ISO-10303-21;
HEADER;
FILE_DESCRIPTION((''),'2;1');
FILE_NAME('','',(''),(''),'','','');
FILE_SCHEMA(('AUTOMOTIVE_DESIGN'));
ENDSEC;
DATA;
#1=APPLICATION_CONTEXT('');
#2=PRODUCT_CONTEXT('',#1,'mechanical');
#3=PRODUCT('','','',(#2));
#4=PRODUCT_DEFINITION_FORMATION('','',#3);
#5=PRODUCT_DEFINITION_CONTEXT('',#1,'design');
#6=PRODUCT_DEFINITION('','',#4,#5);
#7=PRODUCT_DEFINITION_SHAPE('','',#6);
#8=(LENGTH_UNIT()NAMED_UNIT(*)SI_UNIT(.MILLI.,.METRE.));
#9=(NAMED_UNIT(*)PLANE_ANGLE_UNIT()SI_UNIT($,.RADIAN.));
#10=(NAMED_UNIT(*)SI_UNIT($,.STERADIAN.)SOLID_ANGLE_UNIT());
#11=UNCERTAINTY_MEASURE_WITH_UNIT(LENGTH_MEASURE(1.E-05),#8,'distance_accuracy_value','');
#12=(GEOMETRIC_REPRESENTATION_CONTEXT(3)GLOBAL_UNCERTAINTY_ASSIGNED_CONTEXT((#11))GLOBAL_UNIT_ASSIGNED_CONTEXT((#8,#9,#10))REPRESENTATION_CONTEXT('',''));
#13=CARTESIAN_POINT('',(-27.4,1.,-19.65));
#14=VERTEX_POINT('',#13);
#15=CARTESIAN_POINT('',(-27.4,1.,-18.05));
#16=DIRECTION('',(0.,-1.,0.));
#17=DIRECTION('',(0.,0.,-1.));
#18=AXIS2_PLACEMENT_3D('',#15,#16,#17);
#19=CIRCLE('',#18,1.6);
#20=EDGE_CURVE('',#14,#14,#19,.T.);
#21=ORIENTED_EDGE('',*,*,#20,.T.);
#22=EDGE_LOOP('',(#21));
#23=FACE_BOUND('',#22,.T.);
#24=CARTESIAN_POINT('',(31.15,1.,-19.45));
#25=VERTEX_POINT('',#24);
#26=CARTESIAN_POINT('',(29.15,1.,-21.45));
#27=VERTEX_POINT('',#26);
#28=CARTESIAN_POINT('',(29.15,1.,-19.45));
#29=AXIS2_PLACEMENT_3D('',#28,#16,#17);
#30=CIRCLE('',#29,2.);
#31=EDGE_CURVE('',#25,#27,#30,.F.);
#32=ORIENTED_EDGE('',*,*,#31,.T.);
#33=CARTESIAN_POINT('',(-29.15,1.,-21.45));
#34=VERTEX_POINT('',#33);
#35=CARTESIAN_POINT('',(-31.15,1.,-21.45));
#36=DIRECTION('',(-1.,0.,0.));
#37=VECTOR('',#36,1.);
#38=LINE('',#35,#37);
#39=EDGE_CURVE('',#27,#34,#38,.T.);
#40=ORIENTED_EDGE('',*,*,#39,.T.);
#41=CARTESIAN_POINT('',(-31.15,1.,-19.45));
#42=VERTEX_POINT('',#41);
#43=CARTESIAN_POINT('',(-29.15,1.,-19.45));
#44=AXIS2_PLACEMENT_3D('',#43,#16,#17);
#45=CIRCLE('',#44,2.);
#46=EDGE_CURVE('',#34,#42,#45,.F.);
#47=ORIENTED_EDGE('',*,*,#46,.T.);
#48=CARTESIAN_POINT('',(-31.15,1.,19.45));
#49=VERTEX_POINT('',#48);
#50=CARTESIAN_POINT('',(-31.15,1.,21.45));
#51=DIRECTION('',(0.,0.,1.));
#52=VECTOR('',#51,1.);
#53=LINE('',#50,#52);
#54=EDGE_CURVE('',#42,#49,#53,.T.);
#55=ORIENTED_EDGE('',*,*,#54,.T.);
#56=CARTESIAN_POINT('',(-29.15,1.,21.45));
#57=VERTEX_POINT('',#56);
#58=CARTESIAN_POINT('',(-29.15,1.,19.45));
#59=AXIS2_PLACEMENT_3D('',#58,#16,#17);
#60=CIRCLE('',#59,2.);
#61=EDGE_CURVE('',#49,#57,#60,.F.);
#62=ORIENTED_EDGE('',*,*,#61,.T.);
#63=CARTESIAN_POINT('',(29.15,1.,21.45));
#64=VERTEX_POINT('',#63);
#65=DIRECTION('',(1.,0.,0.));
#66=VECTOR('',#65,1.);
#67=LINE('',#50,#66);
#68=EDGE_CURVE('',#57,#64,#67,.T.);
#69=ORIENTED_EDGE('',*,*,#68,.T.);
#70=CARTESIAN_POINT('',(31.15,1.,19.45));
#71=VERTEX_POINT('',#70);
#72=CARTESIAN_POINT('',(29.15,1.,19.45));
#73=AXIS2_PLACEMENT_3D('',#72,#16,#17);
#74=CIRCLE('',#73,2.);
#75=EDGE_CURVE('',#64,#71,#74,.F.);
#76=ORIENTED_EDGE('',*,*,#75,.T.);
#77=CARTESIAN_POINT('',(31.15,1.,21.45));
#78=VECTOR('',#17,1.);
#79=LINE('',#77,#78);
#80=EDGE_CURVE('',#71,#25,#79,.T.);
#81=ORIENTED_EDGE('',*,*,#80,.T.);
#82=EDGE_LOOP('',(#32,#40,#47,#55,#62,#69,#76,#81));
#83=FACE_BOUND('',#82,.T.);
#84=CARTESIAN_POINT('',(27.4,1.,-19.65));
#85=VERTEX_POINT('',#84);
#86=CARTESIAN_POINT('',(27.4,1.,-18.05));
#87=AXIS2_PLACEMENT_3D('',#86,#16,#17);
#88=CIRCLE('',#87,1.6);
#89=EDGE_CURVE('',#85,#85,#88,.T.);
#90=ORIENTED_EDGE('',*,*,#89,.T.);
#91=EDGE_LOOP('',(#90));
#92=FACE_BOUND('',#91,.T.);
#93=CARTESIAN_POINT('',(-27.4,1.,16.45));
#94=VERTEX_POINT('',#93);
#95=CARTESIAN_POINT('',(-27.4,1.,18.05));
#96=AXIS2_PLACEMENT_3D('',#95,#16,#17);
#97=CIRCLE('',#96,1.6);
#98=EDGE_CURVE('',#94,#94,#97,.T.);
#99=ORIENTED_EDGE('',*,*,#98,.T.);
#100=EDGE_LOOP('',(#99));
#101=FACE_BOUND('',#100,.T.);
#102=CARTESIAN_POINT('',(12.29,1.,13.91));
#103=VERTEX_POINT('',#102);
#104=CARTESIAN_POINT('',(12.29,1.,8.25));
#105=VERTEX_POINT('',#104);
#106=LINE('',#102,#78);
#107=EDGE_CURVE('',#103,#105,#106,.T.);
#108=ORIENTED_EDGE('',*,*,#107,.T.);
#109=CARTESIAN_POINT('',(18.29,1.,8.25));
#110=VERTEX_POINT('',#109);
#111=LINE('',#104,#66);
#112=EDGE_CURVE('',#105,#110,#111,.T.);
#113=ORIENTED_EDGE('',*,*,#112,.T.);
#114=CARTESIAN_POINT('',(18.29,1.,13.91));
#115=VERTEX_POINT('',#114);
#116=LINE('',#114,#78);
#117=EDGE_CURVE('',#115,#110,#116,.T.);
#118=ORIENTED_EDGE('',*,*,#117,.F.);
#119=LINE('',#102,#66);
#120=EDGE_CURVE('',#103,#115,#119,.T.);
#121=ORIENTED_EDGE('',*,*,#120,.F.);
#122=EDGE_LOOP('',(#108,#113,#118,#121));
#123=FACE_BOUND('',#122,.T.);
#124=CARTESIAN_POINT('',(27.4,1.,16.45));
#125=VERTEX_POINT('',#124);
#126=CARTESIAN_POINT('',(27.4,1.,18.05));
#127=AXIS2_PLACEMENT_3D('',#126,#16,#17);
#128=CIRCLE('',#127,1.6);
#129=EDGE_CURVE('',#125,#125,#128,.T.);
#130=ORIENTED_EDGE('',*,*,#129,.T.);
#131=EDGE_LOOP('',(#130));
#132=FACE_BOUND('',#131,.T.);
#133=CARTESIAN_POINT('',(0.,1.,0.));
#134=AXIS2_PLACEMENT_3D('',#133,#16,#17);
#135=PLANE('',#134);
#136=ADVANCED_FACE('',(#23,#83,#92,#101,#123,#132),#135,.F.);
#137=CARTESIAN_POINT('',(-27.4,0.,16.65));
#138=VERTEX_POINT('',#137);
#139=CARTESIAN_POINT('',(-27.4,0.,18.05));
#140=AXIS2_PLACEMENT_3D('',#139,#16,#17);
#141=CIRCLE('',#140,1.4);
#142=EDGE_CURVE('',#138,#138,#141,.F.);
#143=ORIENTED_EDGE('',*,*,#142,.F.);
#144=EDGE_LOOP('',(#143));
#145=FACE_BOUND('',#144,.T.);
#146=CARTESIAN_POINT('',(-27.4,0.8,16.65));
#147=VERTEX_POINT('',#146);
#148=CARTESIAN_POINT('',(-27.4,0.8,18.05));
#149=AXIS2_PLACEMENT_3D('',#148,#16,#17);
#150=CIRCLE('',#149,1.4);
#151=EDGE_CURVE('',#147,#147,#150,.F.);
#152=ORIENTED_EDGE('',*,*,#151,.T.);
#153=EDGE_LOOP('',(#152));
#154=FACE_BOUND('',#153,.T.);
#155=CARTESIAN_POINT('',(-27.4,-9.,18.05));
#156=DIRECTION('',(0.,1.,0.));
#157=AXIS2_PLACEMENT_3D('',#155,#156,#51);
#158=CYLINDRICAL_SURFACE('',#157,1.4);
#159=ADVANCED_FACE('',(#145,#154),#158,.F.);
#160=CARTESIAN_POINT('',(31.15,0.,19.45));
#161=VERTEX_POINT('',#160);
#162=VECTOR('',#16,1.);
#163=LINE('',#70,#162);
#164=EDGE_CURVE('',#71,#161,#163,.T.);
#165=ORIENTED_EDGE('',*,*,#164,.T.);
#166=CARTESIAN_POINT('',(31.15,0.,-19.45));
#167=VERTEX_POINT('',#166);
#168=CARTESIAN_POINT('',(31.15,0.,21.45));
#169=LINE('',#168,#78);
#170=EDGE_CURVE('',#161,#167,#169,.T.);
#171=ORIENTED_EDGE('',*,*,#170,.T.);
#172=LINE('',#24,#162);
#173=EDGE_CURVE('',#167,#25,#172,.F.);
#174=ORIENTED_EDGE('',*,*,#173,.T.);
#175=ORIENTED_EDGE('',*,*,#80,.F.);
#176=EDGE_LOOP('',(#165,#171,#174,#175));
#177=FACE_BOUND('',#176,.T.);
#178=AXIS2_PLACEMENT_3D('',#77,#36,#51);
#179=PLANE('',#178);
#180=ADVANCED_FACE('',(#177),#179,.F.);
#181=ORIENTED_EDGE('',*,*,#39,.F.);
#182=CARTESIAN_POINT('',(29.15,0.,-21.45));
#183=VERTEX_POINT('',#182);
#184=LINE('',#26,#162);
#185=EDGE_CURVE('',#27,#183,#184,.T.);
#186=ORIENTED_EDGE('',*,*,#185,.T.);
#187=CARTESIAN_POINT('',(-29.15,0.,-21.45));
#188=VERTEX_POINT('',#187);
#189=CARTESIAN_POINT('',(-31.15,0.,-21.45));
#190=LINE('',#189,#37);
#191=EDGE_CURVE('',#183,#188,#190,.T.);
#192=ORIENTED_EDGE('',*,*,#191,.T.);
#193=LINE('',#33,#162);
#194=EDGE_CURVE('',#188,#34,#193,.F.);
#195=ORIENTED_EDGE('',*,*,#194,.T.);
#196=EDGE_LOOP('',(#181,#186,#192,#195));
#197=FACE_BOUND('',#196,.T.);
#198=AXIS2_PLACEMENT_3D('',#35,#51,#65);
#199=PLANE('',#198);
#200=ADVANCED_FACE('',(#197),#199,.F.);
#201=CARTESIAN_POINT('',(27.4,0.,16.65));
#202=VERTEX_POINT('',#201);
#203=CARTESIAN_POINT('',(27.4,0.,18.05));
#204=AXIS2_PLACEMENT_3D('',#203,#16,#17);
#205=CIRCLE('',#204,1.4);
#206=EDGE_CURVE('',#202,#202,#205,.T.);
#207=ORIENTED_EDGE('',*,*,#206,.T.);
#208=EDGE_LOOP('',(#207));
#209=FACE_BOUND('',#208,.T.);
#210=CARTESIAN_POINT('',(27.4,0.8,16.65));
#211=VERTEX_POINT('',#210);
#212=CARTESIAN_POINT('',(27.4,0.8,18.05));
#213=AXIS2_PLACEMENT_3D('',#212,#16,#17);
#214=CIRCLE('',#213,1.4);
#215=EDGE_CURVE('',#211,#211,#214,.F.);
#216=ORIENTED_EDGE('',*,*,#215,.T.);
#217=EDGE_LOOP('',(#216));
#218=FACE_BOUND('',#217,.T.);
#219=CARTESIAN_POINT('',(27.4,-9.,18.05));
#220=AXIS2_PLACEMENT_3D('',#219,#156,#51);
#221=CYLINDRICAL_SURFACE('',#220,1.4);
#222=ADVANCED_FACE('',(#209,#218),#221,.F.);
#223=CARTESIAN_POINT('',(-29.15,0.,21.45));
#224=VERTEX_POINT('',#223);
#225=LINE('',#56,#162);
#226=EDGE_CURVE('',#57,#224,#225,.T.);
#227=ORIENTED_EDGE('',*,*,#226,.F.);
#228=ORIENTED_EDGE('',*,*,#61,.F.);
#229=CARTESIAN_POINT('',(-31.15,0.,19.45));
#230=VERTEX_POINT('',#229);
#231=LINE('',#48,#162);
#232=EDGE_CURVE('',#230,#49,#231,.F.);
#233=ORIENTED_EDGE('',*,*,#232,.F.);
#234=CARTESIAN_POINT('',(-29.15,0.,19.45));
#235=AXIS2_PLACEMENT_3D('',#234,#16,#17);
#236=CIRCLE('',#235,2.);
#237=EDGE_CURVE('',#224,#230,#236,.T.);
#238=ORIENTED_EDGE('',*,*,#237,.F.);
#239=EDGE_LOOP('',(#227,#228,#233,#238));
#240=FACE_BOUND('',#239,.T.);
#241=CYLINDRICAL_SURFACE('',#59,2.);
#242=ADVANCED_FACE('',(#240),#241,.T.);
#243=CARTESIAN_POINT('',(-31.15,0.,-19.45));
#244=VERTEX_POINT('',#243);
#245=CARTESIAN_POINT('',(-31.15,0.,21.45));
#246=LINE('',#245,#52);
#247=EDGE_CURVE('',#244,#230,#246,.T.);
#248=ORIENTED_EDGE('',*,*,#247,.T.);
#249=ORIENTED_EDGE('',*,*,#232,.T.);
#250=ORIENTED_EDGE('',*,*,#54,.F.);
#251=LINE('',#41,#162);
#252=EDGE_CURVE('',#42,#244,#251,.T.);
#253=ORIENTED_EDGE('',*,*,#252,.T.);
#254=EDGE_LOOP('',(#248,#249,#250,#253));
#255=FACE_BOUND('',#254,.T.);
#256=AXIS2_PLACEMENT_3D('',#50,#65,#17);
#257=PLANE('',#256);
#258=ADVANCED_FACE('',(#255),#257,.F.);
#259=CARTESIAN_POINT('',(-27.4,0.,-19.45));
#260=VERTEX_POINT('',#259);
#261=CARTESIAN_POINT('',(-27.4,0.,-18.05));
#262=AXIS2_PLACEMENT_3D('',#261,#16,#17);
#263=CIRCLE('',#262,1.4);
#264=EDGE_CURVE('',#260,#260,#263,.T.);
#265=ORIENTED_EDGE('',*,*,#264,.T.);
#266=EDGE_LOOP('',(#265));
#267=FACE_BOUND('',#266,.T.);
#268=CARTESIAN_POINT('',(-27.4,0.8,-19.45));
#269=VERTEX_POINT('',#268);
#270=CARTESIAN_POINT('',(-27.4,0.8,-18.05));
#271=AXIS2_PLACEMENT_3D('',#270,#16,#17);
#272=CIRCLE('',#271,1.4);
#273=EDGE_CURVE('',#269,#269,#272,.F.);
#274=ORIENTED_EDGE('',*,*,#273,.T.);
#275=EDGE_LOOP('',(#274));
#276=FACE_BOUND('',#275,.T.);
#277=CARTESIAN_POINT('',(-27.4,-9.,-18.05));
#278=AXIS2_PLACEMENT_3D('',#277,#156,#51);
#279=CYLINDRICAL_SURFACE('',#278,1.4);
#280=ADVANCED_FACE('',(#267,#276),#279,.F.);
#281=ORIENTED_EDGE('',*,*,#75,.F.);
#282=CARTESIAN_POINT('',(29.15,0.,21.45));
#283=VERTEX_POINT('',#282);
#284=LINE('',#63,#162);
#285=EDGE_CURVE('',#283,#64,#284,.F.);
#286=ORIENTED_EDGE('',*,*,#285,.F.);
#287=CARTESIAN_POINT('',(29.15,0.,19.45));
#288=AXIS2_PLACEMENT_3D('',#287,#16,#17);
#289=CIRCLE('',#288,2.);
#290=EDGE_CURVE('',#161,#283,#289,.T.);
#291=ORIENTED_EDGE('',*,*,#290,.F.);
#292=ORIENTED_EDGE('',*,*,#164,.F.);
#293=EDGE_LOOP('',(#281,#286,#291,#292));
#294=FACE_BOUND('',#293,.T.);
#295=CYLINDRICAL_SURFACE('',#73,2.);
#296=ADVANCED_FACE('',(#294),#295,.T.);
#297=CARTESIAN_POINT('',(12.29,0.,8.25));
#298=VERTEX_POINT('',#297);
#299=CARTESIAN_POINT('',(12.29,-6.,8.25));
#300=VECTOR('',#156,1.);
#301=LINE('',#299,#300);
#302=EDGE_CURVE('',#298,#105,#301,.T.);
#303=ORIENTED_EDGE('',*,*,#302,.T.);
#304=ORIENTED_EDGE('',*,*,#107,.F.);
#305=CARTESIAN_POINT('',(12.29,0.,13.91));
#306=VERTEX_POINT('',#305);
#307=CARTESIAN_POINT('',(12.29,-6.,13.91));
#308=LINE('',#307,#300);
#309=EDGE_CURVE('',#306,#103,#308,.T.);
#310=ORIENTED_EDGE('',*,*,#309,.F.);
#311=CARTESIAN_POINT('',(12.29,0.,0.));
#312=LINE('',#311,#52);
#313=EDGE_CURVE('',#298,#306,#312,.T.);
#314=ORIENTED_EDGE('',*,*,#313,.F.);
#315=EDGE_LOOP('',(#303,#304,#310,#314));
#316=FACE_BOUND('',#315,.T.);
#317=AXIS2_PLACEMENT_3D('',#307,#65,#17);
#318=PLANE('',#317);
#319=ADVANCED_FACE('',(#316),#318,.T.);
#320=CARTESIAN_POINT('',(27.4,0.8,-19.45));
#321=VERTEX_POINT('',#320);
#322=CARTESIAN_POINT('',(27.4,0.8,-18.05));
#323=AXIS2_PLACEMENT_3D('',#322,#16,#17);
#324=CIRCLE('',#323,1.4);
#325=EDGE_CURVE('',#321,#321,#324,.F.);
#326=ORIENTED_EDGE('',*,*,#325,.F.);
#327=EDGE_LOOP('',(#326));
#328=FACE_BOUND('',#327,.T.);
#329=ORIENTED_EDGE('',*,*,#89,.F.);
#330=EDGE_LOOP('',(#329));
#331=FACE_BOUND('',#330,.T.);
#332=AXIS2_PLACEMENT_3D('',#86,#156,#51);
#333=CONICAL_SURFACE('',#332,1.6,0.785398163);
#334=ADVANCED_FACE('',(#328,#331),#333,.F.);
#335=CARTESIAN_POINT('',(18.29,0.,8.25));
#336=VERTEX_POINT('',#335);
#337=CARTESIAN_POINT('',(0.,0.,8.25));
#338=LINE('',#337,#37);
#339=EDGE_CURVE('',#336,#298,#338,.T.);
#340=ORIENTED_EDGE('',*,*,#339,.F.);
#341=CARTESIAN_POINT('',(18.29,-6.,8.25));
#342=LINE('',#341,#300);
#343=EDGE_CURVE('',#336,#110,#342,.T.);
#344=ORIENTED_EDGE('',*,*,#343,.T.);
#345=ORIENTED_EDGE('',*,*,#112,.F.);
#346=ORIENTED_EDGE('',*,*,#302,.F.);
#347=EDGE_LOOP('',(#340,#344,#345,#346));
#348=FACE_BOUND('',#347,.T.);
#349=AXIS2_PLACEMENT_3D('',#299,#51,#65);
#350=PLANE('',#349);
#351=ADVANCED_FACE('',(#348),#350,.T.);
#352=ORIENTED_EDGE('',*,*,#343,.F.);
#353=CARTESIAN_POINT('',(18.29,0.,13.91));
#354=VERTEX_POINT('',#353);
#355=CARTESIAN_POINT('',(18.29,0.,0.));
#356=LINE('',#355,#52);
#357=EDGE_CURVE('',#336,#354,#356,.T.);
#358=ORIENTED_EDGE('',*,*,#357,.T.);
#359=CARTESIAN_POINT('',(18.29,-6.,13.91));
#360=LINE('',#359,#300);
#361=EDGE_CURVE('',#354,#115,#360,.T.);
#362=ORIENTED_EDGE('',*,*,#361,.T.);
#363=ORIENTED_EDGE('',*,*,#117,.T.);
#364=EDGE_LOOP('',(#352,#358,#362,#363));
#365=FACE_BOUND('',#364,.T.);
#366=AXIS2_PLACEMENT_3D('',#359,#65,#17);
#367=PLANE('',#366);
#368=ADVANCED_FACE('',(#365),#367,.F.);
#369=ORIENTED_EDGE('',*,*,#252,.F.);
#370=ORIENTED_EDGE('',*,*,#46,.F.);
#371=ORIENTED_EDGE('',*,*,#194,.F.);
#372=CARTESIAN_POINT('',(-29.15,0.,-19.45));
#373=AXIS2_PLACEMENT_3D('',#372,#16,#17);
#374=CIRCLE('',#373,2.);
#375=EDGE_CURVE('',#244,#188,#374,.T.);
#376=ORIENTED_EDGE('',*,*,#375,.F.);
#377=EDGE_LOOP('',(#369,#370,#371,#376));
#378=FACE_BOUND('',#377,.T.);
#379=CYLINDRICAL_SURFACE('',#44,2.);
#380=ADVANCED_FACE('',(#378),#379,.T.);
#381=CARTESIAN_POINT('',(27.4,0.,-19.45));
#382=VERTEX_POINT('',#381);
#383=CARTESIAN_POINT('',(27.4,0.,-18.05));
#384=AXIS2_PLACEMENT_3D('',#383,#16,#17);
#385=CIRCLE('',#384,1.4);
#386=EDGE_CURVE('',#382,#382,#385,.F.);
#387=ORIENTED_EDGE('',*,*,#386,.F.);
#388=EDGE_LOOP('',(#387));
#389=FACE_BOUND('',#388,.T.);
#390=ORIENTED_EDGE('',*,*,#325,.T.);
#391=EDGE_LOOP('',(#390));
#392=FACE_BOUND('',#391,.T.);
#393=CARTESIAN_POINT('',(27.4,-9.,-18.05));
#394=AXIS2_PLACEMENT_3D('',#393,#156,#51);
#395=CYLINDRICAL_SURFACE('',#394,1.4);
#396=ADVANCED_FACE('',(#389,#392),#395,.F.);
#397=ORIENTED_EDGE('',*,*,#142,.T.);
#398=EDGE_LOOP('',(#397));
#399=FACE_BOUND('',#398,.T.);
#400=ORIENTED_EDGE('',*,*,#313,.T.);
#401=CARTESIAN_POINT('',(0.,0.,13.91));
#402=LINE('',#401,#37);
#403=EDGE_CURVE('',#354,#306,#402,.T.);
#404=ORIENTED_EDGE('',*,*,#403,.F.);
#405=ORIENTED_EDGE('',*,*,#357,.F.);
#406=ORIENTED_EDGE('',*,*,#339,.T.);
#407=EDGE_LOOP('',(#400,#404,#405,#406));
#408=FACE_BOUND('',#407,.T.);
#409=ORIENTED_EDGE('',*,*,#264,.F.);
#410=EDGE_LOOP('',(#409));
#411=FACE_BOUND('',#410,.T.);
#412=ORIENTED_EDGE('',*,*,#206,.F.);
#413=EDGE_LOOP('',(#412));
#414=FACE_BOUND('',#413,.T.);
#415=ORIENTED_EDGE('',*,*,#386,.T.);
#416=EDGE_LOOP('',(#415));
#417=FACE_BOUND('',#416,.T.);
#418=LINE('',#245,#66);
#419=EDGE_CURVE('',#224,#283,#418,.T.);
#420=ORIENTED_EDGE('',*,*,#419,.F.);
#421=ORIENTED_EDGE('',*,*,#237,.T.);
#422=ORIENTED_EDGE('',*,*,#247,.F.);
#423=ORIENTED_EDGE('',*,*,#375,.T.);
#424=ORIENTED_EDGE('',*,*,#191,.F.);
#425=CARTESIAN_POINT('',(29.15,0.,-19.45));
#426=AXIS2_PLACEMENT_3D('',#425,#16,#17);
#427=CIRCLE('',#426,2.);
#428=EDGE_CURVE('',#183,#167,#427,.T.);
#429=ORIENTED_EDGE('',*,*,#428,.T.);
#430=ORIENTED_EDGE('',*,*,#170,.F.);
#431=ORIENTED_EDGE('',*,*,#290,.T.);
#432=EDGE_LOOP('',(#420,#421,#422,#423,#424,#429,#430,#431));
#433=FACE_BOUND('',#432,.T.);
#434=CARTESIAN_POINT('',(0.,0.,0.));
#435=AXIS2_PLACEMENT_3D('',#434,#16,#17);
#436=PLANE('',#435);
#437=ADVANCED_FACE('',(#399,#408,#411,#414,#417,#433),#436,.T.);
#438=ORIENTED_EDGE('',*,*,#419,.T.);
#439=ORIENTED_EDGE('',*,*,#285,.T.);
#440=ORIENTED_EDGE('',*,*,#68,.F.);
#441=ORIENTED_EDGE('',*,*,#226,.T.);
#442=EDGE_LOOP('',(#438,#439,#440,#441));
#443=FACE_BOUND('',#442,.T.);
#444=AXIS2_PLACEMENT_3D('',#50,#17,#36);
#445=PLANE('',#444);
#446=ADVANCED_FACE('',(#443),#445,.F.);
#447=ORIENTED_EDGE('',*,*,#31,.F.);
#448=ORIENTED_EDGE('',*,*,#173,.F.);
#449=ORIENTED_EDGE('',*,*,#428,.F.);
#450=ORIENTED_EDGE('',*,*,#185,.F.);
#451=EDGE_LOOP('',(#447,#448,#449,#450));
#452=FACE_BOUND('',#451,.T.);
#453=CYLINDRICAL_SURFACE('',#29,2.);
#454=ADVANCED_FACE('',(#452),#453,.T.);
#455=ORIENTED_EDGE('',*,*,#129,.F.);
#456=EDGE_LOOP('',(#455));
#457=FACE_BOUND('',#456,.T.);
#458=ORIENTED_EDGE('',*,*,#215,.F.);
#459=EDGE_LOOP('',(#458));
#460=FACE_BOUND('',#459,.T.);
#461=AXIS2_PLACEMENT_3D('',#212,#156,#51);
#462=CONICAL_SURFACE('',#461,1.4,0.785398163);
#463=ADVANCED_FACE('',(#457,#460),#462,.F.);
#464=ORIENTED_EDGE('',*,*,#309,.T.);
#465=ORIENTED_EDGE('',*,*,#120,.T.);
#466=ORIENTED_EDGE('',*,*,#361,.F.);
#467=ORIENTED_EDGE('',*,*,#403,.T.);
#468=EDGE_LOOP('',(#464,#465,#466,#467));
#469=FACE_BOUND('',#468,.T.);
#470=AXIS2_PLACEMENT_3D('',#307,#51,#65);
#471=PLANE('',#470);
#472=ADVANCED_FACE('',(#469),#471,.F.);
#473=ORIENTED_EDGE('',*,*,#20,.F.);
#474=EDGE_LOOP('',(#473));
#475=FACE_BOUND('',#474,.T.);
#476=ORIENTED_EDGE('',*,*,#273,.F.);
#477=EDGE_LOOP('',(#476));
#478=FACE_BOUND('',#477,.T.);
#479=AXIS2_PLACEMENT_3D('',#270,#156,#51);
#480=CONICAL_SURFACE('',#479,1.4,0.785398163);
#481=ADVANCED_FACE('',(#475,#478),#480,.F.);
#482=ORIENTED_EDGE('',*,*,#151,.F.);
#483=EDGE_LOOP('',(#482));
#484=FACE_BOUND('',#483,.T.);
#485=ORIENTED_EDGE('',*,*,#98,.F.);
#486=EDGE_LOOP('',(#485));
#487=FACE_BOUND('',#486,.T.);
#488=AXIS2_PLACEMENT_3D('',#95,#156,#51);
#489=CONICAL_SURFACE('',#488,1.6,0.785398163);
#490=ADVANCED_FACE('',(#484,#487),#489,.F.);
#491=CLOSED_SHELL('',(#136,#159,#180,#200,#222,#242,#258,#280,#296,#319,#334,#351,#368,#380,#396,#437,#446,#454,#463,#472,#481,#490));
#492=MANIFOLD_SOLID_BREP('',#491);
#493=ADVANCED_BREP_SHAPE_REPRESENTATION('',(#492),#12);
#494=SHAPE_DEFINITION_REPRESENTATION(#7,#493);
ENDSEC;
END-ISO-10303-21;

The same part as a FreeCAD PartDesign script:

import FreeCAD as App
import Part
import Sketcher

V = App.Vector


def edges_at(feature, points):
    """Names of the edges that pass closest to the given points."""
    edges = feature.Shape.Edges
    near = lambda p: min(range(len(edges)), key=lambda i: edges[i].distToShape(Part.Vertex(*p))[0])
    return sorted({f"Edge{near(p) + 1}" for p in points})


def add_polygon(sketch, points):
    """Adds a closed chain of lines whose ends are joined by coincident constraints."""
    first, n = sketch.GeometryCount, len(points)
    for a, b in zip(points, points[1:] + points[:1]):
        sketch.addGeometry(Part.LineSegment(App.Vector(*a, 0), App.Vector(*b, 0)), False)
    for i in range(n):
        sketch.addConstraint(Sketcher.Constraint("Coincident", first + i, 2, first + (i + 1) % n, 1))

doc = App.newDocument("Part")
body = doc.addObject("PartDesign::Body", "Body")

# Sketch on XZ plane
sketch1 = body.newObject("Sketcher::SketchObject", "Sketch")
sketch1.AttachmentSupport = (doc.getObject("XZ_Plane"), [""])
sketch1.MapMode = "FlatFace"
add_polygon(sketch1, [(-31.15, -21.45), (-31.15, 21.45), (31.15, 21.45), (31.15, -21.45)])  # lines 0-3
sketch1.addConstraint([
    Sketcher.Constraint("Vertical", 0),
    Sketcher.Constraint("Horizontal", 1),
    Sketcher.Constraint("Vertical", 2),
    Sketcher.Constraint("Horizontal", 3),
    Sketcher.Constraint("Symmetric", 0, 2, 2, 2, -1, 1),
    Sketcher.Constraint("DistanceX", 1, 1, 1, 2, 62.3),
    Sketcher.Constraint("DistanceY", 0, 1, 0, 2, 42.9),
])
pad1 = body.newObject("PartDesign::Pad", "Pad")
pad1.Profile = sketch1
pad1.Length = 1
pad1.Reversed = True

# Sketch on XZ plane
sketch2 = body.newObject("Sketcher::SketchObject", "Sketch001")
sketch2.AttachmentSupport = (doc.getObject("XZ_Plane"), [""])
sketch2.MapMode = "FlatFace"
sketch2.AttachmentOffset = App.Placement(V(0, 0, -1), App.Rotation())
add_polygon(sketch2, [(12.29, 8.25), (12.29, 13.91), (18.29, 13.91), (18.29, 8.25)])  # lines 0-3
sketch2.addConstraint([
    Sketcher.Constraint("Vertical", 0),
    Sketcher.Constraint("Horizontal", 1),
    Sketcher.Constraint("Vertical", 2),
    Sketcher.Constraint("Horizontal", 3),
    Sketcher.Constraint("DistanceX", 1, 1, 1, 2, 6.0),
    Sketcher.Constraint("DistanceY", 0, 1, 0, 2, 5.66),
    Sketcher.Constraint("DistanceX", -1, 1, 0, 2, 12.29),
    Sketcher.Constraint("DistanceY", -1, 1, 0, 2, 13.91),
])
pocket1 = body.newObject("PartDesign::Pocket", "Pocket")
pocket1.Profile = sketch2
pocket1.Length = 7
pocket1.Reversed = True

# Sketch on XZ plane
sketch3 = body.newObject("Sketcher::SketchObject", "Sketch002")
sketch3.AttachmentSupport = (doc.getObject("XZ_Plane"), [""])
sketch3.MapMode = "FlatFace"
sketch3.AttachmentOffset = App.Placement(V(0, 0, -1), App.Rotation())
sketch3.addGeometry([
    Part.Circle(V(27.4, -18.05, 0), V(0, 0, 1), 1.4),
    Part.Circle(V(27.4, 18.05, 0), V(0, 0, 1), 1.4),
    Part.Circle(V(-27.4, 18.05, 0), V(0, 0, 1), 1.4),
    Part.Circle(V(-27.4, -18.05, 0), V(0, 0, 1), 1.4),
], False)
sketch3.addConstraint([
    Sketcher.Constraint("Equal", 0, 1),
    Sketcher.Constraint("Equal", 1, 2),
    Sketcher.Constraint("Equal", 2, 3),
    Sketcher.Constraint("Symmetric", 0, 3, 2, 3, -1, 1),
    Sketcher.Constraint("Symmetric", 1, 3, 3, 3, -1, 1),
    Sketcher.Constraint("Symmetric", 1, 3, 2, 3, -2),
    Sketcher.Constraint("Diameter", 0, 2.8),
    Sketcher.Constraint("DistanceX", -1, 1, 0, 3, 27.4),
    Sketcher.Constraint("DistanceY", 0, 3, 1, 3, 36.1),
])
pocket2 = body.newObject("PartDesign::Pocket", "Pocket001")
pocket2.Profile = sketch3
pocket2.Length = 10
pocket2.Reversed = True
doc.recompute()

fillet = body.newObject("PartDesign::Fillet", "Fillet")
fillet.Base = (pocket2, edges_at(pocket2, [
    (31.15, 0.5, 21.45),
    (-31.15, 0.5, 21.45),
    (-31.15, 0.5, -21.45),
    (31.15, 0.5, -21.45),
]))
fillet.Radius = 2
doc.recompute()

chamfer = body.newObject("PartDesign::Chamfer", "Chamfer")
chamfer.Base = (fillet, edges_at(fillet, [
    (-28.8, 1, -18.05),
    (-28.8, 1, 18.05),
    (26, 1, 18.05),
    (26, 1, -18.05),
]))
chamfer.Size = 0.2

doc.recompute()
